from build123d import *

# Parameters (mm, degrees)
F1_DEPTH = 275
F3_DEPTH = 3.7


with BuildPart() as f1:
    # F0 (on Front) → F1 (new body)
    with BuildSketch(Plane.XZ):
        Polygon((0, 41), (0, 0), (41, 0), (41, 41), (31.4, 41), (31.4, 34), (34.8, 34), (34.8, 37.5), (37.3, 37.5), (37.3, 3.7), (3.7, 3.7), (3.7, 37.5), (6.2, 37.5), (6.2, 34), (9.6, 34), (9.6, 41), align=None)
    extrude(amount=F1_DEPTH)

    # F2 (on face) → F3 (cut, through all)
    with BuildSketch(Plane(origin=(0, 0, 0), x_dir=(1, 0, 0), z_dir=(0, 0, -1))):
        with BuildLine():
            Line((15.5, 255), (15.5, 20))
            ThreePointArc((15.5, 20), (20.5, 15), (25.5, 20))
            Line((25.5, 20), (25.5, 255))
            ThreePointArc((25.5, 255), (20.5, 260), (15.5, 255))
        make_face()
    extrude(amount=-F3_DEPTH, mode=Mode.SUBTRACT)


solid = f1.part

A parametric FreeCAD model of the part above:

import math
import FreeCAD as App
import Part
import Sketcher

V = App.Vector


def add_polygon(sketch, points):
    """Adds a closed chain of lines whose ends are joined by coincident constraints."""
    first, n = sketch.GeometryCount, len(points)
    for a, b in zip(points, points[1:] + points[:1]):
        sketch.addGeometry(Part.LineSegment(App.Vector(*a, 0), App.Vector(*b, 0)), False)
    for i in range(n):
        sketch.addConstraint(Sketcher.Constraint("Coincident", first + i, 2, first + (i + 1) % n, 1))

doc = App.newDocument("Part")
body = doc.addObject("PartDesign::Body", "Body")

# Sketch on XZ plane
sketch1 = doc.addObject("Sketcher::SketchObject", "Sketch")
body.addObject(sketch1)
sketch1.AttachmentSupport = (doc.XZ_Plane, [""])
sketch1.MapMode = "FlatFace"
add_polygon(sketch1, [(0, 41), (0, 0), (41, 0), (41, 41), (31.4, 41), (31.4, 34), (34.8, 34), (34.8, 37.5), (37.3, 37.5), (37.3, 3.7), (3.7, 3.7), (3.7, 37.5), (6.2, 37.5), (6.2, 34), (9.6, 34), (9.6, 41)])  # lines 0-15
sketch1.addConstraint([
    Sketcher.Constraint("Vertical", 0),
    Sketcher.Constraint("Horizontal", 1),
    Sketcher.Constraint("Vertical", 2),
    Sketcher.Constraint("Horizontal", 3),
    Sketcher.Constraint("Vertical", 4),
    Sketcher.Constraint("Horizontal", 5),
    Sketcher.Constraint("Vertical", 6),
    Sketcher.Constraint("Horizontal", 7),
    Sketcher.Constraint("Vertical", 8),
    Sketcher.Constraint("Horizontal", 9),
    Sketcher.Constraint("Vertical", 10),
    Sketcher.Constraint("Horizontal", 11),
    Sketcher.Constraint("Vertical", 12),
    Sketcher.Constraint("Horizontal", 13),
    Sketcher.Constraint("Vertical", 14),
    Sketcher.Constraint("Horizontal", 15),
    Sketcher.Constraint("Coincident", 0, 2, -1, 1),
    Sketcher.Constraint("Horizontal", 7, 2, 10, 2),
    Sketcher.Constraint("Horizontal", 5, 2, 12, 2),
    Sketcher.Constraint("Horizontal", 3, 2, 14, 2),
    Sketcher.Constraint("Equal", 7, 11),
    Sketcher.Constraint("Equal", 5, 13),
    Sketcher.Constraint("Equal", 3, 15),
    Sketcher.Constraint("Equal", 1, 0),
    Sketcher.Constraint("DistanceX", 1, 1, 1, 2, 41.0),
    Sketcher.Constraint("DistanceY", 4, 2, 4, 1, 7.0),
    Sketcher.Constraint("DistanceX", 3, 2, 3, 1, 9.6),
    Sketcher.Constraint("DistanceX", 5, 1, 5, 2, 3.4),
    Sketcher.Constraint("DistanceX", 7, 1, 7, 2, 2.5),
    Sketcher.Constraint("DistanceY", 6, 1, 6, 2, 3.5),
    Sketcher.Constraint("DistanceY", 8, 2, 8, 1, 33.8),
])
pad1 = doc.addObject("PartDesign::Pad", "Pad")
body.addObject(pad1)
pad1.Profile = sketch1
pad1.Length = 275

# Sketch on XY plane
sketch2 = doc.addObject("Sketcher::SketchObject", "Sketch001")
body.addObject(sketch2)
sketch2.AttachmentSupport = (doc.XY_Plane, [""])
sketch2.MapMode = "FlatFace"
sketch2.addGeometry([
    Part.LineSegment(V(16, -255, 0), V(16, -20, 0)),
    Part.ArcOfCircle(Part.Circle(V(20, -20, 0), V(0, 0, 1), 5), math.radians(0), math.radians(180)),
    Part.LineSegment(V(26, -20, 0), V(26, -255, 0)),
    Part.ArcOfCircle(Part.Circle(V(20, -255, 0), V(0, 0, 1), 5), math.radians(180), math.radians(360)),
], False)
sketch2.addConstraint([
    Sketcher.Constraint("Tangent", 0, 2, 1, 2),
    Sketcher.Constraint("Tangent", 1, 1, 2, 1),
    Sketcher.Constraint("Tangent", 2, 2, 3, 2),
    Sketcher.Constraint("Tangent", 3, 1, 0, 1),
    Sketcher.Constraint("Vertical", 0),
    Sketcher.Constraint("Vertical", 2),
    Sketcher.Constraint("Radius", 1, 5.0),
    Sketcher.Constraint("DistanceY", 0, 1, 0, 2, 235.0),
    Sketcher.Constraint("DistanceY", 1, 3, -1, 1, 20.0),
    Sketcher.Constraint("DistanceX", -1, 1, 1, 3, 20.5),
])
pocket1 = doc.addObject("PartDesign::Pocket", "Pocket")
body.addObject(pocket1)
pocket1.Profile = sketch2
pocket1.Type = "ThroughAll"
pocket1.Reversed = True

doc.recompute()
